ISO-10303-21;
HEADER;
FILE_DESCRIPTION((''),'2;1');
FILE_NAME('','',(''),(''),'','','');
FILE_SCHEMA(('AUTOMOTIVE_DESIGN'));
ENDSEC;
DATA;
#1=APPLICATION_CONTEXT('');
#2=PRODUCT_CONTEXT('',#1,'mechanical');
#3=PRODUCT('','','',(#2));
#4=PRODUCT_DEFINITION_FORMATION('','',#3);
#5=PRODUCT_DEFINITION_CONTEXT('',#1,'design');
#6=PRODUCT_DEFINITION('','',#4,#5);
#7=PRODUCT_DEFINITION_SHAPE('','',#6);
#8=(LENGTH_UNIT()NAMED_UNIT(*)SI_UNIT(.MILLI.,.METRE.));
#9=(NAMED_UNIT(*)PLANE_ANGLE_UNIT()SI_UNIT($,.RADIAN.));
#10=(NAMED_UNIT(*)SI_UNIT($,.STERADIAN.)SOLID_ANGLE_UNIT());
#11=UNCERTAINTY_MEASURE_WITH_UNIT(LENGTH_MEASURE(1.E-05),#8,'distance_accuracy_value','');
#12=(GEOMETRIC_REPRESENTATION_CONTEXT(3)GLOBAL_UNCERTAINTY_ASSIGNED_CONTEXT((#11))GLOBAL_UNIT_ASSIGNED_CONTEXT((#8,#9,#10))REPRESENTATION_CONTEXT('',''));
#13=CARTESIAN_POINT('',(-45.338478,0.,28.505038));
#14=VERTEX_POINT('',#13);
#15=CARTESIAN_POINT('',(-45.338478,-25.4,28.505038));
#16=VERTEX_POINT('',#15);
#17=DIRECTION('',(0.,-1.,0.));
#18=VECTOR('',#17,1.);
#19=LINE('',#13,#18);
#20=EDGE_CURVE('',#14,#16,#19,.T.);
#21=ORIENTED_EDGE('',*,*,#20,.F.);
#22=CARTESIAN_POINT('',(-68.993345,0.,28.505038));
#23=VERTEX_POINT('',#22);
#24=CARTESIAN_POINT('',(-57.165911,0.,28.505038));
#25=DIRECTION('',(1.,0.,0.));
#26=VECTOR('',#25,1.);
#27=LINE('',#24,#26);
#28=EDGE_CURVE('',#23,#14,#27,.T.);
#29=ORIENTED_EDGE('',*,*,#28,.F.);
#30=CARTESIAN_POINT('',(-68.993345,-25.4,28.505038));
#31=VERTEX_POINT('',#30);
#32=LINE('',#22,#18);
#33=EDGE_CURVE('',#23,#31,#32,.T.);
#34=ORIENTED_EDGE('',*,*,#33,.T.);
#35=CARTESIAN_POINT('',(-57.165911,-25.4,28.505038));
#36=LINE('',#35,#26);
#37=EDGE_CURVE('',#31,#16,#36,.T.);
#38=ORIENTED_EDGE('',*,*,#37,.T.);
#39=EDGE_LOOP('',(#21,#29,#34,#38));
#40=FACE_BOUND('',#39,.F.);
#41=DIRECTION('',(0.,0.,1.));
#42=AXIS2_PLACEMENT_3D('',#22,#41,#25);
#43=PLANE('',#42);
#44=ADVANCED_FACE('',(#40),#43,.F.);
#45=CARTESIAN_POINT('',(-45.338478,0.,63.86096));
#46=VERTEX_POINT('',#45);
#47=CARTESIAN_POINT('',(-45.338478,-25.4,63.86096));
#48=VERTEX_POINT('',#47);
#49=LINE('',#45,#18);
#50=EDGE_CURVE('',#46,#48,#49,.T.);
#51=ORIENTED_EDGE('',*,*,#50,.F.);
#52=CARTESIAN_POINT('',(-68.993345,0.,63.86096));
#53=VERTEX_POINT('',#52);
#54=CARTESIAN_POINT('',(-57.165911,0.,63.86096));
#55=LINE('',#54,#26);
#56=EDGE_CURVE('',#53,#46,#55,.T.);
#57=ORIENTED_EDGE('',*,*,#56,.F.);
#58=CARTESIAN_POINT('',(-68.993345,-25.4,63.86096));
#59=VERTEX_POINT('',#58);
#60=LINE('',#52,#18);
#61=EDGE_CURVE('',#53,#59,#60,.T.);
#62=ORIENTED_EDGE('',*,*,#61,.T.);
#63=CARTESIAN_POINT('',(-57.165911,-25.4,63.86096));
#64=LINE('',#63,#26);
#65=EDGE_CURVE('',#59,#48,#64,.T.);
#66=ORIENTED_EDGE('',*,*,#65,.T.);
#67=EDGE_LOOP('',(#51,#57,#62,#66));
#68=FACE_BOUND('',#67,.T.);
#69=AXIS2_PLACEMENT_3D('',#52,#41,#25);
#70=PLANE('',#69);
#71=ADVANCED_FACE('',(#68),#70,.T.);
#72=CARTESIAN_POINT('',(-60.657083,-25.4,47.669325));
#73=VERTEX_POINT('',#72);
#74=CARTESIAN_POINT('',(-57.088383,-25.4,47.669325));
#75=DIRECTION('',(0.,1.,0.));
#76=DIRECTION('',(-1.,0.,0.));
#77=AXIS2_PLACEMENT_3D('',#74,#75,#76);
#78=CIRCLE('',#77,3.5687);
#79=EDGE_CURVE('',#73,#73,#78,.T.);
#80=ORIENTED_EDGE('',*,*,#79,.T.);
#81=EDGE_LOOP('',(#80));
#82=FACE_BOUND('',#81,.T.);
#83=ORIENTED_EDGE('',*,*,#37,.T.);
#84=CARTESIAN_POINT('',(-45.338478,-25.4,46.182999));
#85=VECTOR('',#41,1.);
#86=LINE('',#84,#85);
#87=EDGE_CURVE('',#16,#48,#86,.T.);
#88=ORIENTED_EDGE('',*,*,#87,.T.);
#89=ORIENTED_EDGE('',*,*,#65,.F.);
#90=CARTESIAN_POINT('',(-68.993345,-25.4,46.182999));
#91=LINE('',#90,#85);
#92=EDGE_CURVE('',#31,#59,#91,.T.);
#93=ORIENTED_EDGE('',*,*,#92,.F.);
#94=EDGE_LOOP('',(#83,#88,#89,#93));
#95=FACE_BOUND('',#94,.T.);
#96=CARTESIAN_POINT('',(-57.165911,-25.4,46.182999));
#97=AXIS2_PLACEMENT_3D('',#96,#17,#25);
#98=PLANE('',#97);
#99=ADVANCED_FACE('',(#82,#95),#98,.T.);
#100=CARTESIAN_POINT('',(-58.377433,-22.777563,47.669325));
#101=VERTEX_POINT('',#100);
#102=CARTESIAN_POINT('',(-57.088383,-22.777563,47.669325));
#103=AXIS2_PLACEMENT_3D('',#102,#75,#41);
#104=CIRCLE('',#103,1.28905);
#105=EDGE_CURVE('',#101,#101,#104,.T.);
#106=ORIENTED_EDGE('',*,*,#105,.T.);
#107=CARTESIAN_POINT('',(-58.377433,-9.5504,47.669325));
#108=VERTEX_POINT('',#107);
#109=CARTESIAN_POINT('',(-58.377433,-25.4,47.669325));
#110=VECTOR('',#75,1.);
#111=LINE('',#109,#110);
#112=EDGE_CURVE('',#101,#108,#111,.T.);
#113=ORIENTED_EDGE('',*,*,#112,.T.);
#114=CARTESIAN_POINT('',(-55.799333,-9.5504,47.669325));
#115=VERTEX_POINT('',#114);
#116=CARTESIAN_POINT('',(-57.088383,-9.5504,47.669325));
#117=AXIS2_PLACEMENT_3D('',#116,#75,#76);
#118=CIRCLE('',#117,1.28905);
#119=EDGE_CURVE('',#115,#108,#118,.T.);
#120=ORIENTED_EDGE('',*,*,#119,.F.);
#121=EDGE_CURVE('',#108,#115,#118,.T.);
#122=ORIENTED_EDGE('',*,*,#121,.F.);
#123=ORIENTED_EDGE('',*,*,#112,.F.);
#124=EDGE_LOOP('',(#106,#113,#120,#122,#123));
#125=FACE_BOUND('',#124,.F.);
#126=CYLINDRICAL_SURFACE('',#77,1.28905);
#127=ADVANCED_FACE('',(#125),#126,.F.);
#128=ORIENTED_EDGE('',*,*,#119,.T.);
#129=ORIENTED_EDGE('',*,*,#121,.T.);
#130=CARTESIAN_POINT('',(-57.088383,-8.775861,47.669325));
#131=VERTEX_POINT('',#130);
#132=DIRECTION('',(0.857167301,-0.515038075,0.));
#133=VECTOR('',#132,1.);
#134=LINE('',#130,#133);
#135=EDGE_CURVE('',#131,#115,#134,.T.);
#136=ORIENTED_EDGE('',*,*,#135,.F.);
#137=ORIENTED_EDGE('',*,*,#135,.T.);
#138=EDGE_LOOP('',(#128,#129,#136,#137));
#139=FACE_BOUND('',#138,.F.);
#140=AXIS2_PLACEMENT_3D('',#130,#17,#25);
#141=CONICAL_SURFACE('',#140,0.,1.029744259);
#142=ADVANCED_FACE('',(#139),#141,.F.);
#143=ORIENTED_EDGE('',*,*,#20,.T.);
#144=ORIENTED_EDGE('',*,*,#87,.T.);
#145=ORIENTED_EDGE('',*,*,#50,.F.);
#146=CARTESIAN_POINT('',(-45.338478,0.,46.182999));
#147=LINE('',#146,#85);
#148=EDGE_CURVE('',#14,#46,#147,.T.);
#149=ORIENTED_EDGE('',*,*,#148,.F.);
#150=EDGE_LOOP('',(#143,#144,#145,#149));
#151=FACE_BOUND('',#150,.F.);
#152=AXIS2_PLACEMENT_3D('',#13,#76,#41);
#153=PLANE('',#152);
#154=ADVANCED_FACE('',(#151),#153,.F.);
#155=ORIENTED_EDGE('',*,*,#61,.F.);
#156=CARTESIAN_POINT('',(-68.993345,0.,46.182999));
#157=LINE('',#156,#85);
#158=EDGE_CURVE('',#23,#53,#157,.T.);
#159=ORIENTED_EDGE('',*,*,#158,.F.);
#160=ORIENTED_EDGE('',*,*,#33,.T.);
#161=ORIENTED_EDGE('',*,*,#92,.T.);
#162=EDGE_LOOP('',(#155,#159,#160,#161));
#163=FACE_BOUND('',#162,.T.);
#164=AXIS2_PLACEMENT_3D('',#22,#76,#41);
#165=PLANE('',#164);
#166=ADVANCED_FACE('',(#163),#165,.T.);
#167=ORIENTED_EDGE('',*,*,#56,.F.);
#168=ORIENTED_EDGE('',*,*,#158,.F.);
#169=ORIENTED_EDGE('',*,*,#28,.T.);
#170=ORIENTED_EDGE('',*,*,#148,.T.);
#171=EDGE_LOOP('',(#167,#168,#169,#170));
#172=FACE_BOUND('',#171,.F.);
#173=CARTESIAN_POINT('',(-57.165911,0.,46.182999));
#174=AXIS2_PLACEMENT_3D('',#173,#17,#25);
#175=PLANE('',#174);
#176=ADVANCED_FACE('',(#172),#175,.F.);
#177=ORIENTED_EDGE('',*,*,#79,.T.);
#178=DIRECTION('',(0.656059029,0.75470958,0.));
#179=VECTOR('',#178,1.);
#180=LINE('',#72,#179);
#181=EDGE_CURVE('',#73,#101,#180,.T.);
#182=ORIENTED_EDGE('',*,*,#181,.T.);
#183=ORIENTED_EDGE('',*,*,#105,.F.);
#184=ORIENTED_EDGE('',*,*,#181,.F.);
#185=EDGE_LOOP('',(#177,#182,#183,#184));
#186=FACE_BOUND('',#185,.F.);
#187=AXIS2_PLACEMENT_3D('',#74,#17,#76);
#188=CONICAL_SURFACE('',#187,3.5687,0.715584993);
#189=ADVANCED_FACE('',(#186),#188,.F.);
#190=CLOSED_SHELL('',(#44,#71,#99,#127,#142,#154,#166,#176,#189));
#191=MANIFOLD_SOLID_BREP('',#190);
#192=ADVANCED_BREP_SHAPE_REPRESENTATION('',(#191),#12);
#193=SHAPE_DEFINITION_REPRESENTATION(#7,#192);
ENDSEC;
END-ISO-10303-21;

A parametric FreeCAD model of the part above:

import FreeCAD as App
import Part
import Sketcher
Q = App.Units.Quantity


def add_polygon(sketch, points):
    """Adds a closed chain of lines whose ends are joined by coincident constraints."""
    first, n = sketch.GeometryCount, len(points)
    for a, b in zip(points, points[1:] + points[:1]):
        sketch.addGeometry(Part.LineSegment(App.Vector(*a, 0), App.Vector(*b, 0)), False)
    for i in range(n):
        sketch.addConstraint(Sketcher.Constraint("Coincident", first + i, 2, first + (i + 1) % n, 1))

doc = App.newDocument("Part")
body = doc.addObject("PartDesign::Body", "Body")

# Sketch on XZ plane
sketch1 = body.newObject("Sketcher::SketchObject", "Sketch")
sketch1.AttachmentSupport = (doc.getObject("XZ_Plane"), [""])
sketch1.MapMode = "FlatFace"
add_polygon(sketch1, [(-69, 64), (-69, 29), (-45, 29), (-45, 64)])  # lines 0-3
sketch1.addConstraint(Sketcher.Constraint("Vertical", 0))
sketch1.addConstraint(Sketcher.Constraint("Horizontal", 1))
sketch1.addConstraint(Sketcher.Constraint("Vertical", 2))
sketch1.addConstraint(Sketcher.Constraint("Horizontal", 3))
sketch1.addConstraint(Sketcher.Constraint("DistanceY", 0, 2, 0, 1, 35.355922))
sketch1.addConstraint(Sketcher.Constraint("DistanceX", 1, 1, 1, 2, 23.654867))
sketch1.addConstraint(Sketcher.Constraint("DistanceY", -1, 1, 0, 2, 28.505038))
sketch1.addConstraint(Sketcher.Constraint("DistanceX", 0, 2, -1, 1, 68.993345))
pad1 = body.newObject("PartDesign::Pad", "Pad")
pad1.Profile = sketch1
pad1.Length = Q("1 in")

# Sketch on XZ plane
sketch2 = body.newObject("Sketcher::SketchObject", "Sketch001")
sketch2.AttachmentSupport = (doc.getObject("XZ_Plane"), [""])
sketch2.MapMode = "FlatFace"
sketch2.AttachmentOffset = App.Placement(App.Vector(0, 0, 1 * 25.4), App.Rotation())
sketch2.addGeometry(Part.Circle(App.Vector(-57.1, 47.7, 0), App.Vector(0, 0, 1), 1.3), False)
sketch2.addConstraint(Sketcher.Constraint("Diameter", 0, Q("0.1015 in")))
sketch2.addConstraint(Sketcher.Constraint("DistanceX", 0, 3, -1, 1, 57.088383))
sketch2.addConstraint(Sketcher.Constraint("DistanceY", -1, 1, 0, 3, 47.669325))
doc.recompute()
hole = body.newObject("PartDesign::Hole", "Hole")
hole.Profile = sketch2
hole.ThreadType = "None"
hole.Diameter = Q("0.1015 in")
hole.DepthType = "Dimension"
hole.Depth = Q("0.624 in")
hole.DrillPoint = "Angled"
hole.DrillPointAngle = 118
hole.HoleCutType = "Countersink"
hole.HoleCutDiameter = Q("0.281 in")
hole.HoleCutCountersinkAngle = 82

doc.recompute()
